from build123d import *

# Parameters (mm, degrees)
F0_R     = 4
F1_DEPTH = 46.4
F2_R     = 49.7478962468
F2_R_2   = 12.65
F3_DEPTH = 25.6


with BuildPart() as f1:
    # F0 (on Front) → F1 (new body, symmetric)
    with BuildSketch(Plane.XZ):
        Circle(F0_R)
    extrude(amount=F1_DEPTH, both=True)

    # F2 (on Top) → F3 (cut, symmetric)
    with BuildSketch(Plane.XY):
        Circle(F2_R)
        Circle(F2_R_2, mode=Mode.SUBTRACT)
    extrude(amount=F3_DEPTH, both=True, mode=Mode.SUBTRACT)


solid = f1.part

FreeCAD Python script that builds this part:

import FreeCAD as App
import Part
import Sketcher
Q = App.Units.Quantity

doc = App.newDocument("Part")
body = doc.addObject("PartDesign::Body", "Body")

sketch1 = body.newObject("Sketcher::SketchObject", "Sketch")
sketch1.AttachmentSupport = (doc.getObject("XZ_Plane"), [""])
sketch1.MapMode = "FlatFace"
sketch1.addGeometry(Part.Circle(App.Vector(0, 0, 0), App.Vector(0, 0, 1), 4), False)
sketch1.addConstraint([
    Sketcher.Constraint("Coincident", 0, 3, -1, 1),
    Sketcher.Constraint("Diameter", 0, Q("8 mm")),
])
pad1 = body.newObject("PartDesign::Pad", "Pad")
pad1.Profile = sketch1
pad1.Length = 92.8
pad1.Midplane = True

sketch2 = body.newObject("Sketcher::SketchObject", "Sketch001")
sketch2.AttachmentSupport = (doc.getObject("XY_Plane"), [""])
sketch2.MapMode = "FlatFace"
sketch2.addGeometry([
    Part.Circle(App.Vector(0, 0, 0), App.Vector(0, 0, 1), 50),
    Part.Circle(App.Vector(0, 0, 0), App.Vector(0, 0, 1), 13),
], False)
sketch2.addConstraint([
    Sketcher.Constraint("Coincident", 0, 3, -1, 1),
    Sketcher.Constraint("Coincident", 1, 3, -1, 1),
    Sketcher.Constraint("Diameter", 1, Q("25.3 mm")),
    Sketcher.Constraint("Diameter", 0, Q("99.495792 mm")),
])
pocket1 = body.newObject("PartDesign::Pocket", "Pocket")
pocket1.Profile = sketch2
pocket1.Length = 51.2
pocket1.Midplane = True

doc.recompute()
